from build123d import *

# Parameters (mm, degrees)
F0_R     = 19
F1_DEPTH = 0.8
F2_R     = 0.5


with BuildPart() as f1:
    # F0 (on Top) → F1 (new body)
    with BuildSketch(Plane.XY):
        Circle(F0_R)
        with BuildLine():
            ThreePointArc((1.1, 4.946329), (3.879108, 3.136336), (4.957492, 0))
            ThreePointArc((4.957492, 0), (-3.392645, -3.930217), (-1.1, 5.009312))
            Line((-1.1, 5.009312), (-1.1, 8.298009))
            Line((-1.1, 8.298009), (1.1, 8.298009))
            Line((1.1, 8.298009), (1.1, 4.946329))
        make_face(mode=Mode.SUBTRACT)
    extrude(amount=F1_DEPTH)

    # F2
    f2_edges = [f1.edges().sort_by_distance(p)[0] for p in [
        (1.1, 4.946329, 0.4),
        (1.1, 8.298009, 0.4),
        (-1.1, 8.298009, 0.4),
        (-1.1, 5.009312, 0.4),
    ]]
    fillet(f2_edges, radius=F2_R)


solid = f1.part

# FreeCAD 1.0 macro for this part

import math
import FreeCAD as App
import Part
import Sketcher

V = App.Vector


def edges_at(feature, points):
    """Names of the edges that pass closest to the given points."""
    edges = feature.Shape.Edges
    near = lambda p: min(range(len(edges)), key=lambda i: edges[i].distToShape(Part.Vertex(*p))[0])
    return sorted({f"Edge{near(p) + 1}" for p in points})

doc = App.newDocument("Part")
body = doc.addObject("PartDesign::Body", "Body")

# Sketch on XY plane
sketch1 = body.newObject("Sketcher::SketchObject", "Sketch")
sketch1.AttachmentSupport = (doc.getObject("XY_Plane"), [""])
sketch1.MapMode = "FlatFace"
sketch1.addGeometry([
    Part.Circle(V(0, 0, 0), V(0, 0, 1), 19),  # 0
    Part.LineSegment(V(1.1, 8.298009, 0), V(1.1, 4.946329, 0)),  # 1
    Part.ArcOfCircle(Part.Circle(V(-0.142508, 0, 0), V(0, 0, 1), 5.1), math.radians(0.000001), math.radians(75.899175)),  # 2
    Part.ArcOfCircle(Part.Circle(V(-0.142508, 0, 0), V(0, 0, 1), 5.1), math.radians(100.821131), math.radians(360)),  # 3
    Part.LineSegment(V(-1.1, 5.009312, 0), V(-1.1, 8.298009, 0)),  # 4
    Part.LineSegment(V(-1.1, 8.298009, 0), V(1.1, 8.298009, 0)),  # 5
], False)
sketch1.addConstraint([
    Sketcher.Constraint("Coincident", 1, 2, 2, 2),
    Sketcher.Constraint("Tangent", 2, 1, 3, 2),
    Sketcher.Constraint("Coincident", 3, 1, 4, 1),
    Sketcher.Constraint("Coincident", 4, 2, 5, 1),
    Sketcher.Constraint("Coincident", 5, 2, 1, 1),
    Sketcher.Constraint("Vertical", 1),
    Sketcher.Constraint("Vertical", 4),
    Sketcher.Constraint("Horizontal", 5),
    Sketcher.Constraint("Coincident", 0, 3, -1, 1),
    Sketcher.Constraint("Equal", 2, 3),
    Sketcher.Constraint("PointOnObject", 2, 3, -1),
    Sketcher.Constraint("PointOnObject", 2, 1, -1),
    Sketcher.Constraint("Diameter", 0, 38.0),
    Sketcher.Constraint("Radius", 2, 5.1),
    Sketcher.Constraint("DistanceX", 5, 1, 5, 2, 2.2),
    Sketcher.Constraint("DistanceX", -1, 1, 1, 2, 1.1),
    Sketcher.Constraint("DistanceY", 1, 2, 1, 1, 3.35168),
    Sketcher.Constraint("DistanceY", 4, 1, 4, 2, 3.288697),
])
pad1 = body.newObject("PartDesign::Pad", "Pad")
pad1.Profile = sketch1
pad1.Length = 0.8
doc.recompute()

fillet = body.newObject("PartDesign::Fillet", "Fillet")
fillet.Base = (pad1, edges_at(pad1, [
    (1.1, 4.946, 0.4),
    (1.1, 8.298, 0.4),
    (-1.1, 8.298, 0.4),
    (-1.1, 5.009, 0.4),
]))
fillet.Radius = 0.5

doc.recompute()
